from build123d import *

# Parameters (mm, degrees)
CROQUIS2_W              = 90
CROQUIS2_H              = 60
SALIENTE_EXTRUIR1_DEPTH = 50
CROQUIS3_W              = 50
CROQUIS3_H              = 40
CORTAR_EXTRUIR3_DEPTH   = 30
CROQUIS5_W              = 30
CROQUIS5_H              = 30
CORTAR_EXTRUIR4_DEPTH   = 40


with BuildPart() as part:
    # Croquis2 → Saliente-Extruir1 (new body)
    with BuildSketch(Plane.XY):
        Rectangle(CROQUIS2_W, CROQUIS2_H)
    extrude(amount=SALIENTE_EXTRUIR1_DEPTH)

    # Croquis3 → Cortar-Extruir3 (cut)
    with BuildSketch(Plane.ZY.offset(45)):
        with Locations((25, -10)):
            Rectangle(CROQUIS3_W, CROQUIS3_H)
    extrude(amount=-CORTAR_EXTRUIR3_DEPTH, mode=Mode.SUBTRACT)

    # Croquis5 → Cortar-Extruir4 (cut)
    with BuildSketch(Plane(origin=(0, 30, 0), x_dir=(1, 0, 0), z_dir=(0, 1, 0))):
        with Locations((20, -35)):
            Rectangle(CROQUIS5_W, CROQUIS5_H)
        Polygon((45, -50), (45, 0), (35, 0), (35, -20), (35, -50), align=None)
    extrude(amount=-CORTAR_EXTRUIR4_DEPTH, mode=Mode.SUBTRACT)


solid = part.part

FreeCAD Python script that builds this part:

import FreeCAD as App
import Part
import Sketcher
from FreeCAD import Vector
Q = App.Units.Quantity


def add_polygon(sketch, points):
    """Adds a closed chain of lines whose ends are joined by coincident constraints."""
    first, n = sketch.GeometryCount, len(points)
    for a, b in zip(points, points[1:] + points[:1]):
        sketch.addGeometry(Part.LineSegment(App.Vector(*a, 0), App.Vector(*b, 0)), False)
    for i in range(n):
        sketch.addConstraint(Sketcher.Constraint("Coincident", first + i, 2, first + (i + 1) % n, 1))

doc = App.newDocument("Part")
body = doc.addObject("PartDesign::Body", "Body")

sketch1 = body.newObject("Sketcher::SketchObject", "Sketch")
sketch1.AttachmentSupport = (doc.getObject("XY_Plane"), [""])
sketch1.MapMode = "FlatFace"
add_polygon(sketch1, [(-45, 30), (-45, -30), (45, -30), (45, 30)])
sketch1.addConstraint([
    Sketcher.Constraint("Vertical", 0),
    Sketcher.Constraint("Horizontal", 1),
    Sketcher.Constraint("Vertical", 2),
    Sketcher.Constraint("Horizontal", 3),
    Sketcher.Constraint("Symmetric", 0, 2, 2, 2, -1, 1),
    Sketcher.Constraint("DistanceX", 1, 1, 1, 2, Q("90 mm")),
    Sketcher.Constraint("DistanceY", 0, 2, 0, 1, Q("60 mm")),
])
pad1 = body.newObject("PartDesign::Pad", "Pad")
pad1.Profile = sketch1
pad1.Length = 50

sketch2 = body.newObject("Sketcher::SketchObject", "Sketch001")
sketch2.AttachmentSupport = (doc.getObject("YZ_Plane"), [""])
sketch2.MapMode = "FlatFace"
sketch2.AttachmentOffset = App.Placement(Vector(0, 0, -45), App.Rotation())
add_polygon(sketch2, [(10, 0), (-30, 0), (-30, 50), (10, 50)])
sketch2.addConstraint([
    Sketcher.Constraint("Horizontal", 0),
    Sketcher.Constraint("Vertical", 1),
    Sketcher.Constraint("Horizontal", 2),
    Sketcher.Constraint("Vertical", 3),
    Sketcher.Constraint("PointOnObject", 0, 2, -1),
    Sketcher.Constraint("DistanceX", 0, 2, 0, 1, Q("40 mm")),
    Sketcher.Constraint("DistanceY", 1, 1, 1, 2, Q("50 mm")),
    Sketcher.Constraint("DistanceX", 0, 2, -1, 1, Q("30 mm")),
])
pocket1 = body.newObject("PartDesign::Pocket", "Pocket")
pocket1.Profile = sketch2
pocket1.Length = 30
pocket1.Reversed = True

sketch3 = body.newObject("Sketcher::SketchObject", "Sketch002")
sketch3.AttachmentSupport = (doc.getObject("XZ_Plane"), [""])
sketch3.MapMode = "FlatFace"
sketch3.AttachmentOffset = App.Placement(Vector(0, 0, -30), App.Rotation())
add_polygon(sketch3, [(5, 20), (5, 50), (45, 50), (45, 0), (35, 0), (35, 20)])
sketch3.addConstraint([
    Sketcher.Constraint("Vertical", 0),
    Sketcher.Constraint("Horizontal", 1),
    Sketcher.Constraint("Vertical", 2),
    Sketcher.Constraint("Horizontal", 3),
    Sketcher.Constraint("Vertical", 4),
    Sketcher.Constraint("Horizontal", 5),
    Sketcher.Constraint("PointOnObject", 2, 2, -1),
    Sketcher.Constraint("Equal", 5, 0),
    Sketcher.Constraint("DistanceX", 1, 1, 1, 2, Q("40 mm")),
    Sketcher.Constraint("DistanceX", 3, 2, 3, 1, Q("10 mm")),
    Sketcher.Constraint("DistanceY", 2, 2, 2, 1, Q("50 mm")),
    Sketcher.Constraint("DistanceX", -1, 1, 0, 2, Q("5 mm")),
])
pocket2 = body.newObject("PartDesign::Pocket", "Pocket001")
pocket2.Profile = sketch3
pocket2.Length = 40
pocket2.Reversed = True

doc.recompute()
